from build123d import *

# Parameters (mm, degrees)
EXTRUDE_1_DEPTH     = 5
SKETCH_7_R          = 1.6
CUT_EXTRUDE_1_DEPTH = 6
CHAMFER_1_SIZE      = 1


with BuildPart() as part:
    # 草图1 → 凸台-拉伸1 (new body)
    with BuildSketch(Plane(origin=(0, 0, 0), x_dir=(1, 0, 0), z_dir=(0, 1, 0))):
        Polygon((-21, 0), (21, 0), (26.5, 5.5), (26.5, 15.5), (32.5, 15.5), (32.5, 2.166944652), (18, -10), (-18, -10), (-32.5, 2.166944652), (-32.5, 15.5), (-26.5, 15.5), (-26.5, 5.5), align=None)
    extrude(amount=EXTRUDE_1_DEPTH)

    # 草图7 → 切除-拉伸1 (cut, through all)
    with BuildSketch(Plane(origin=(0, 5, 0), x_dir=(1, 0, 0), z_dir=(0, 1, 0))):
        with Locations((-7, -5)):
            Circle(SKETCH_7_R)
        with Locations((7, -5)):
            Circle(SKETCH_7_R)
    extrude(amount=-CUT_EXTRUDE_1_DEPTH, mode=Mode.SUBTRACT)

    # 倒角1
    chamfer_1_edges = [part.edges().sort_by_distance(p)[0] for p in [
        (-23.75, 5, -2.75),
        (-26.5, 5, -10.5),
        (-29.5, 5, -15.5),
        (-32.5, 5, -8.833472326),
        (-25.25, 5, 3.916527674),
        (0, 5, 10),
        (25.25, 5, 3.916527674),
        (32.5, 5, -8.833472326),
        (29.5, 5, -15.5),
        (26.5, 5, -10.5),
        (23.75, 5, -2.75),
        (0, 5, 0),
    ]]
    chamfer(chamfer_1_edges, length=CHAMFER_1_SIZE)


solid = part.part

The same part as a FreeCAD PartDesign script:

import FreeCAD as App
import Part
import Sketcher
Q = App.Units.Quantity


def edges_at(feature, points):
    """Names of the edges that pass closest to the given points."""
    edges = feature.Shape.Edges
    near = lambda p: min(range(len(edges)), key=lambda i: edges[i].distToShape(Part.Vertex(*p))[0])
    return sorted({f"Edge{near(p) + 1}" for p in points})


def add_polygon(sketch, points):
    """Adds a closed chain of lines whose ends are joined by coincident constraints."""
    first, n = sketch.GeometryCount, len(points)
    for a, b in zip(points, points[1:] + points[:1]):
        sketch.addGeometry(Part.LineSegment(App.Vector(*a, 0), App.Vector(*b, 0)), False)
    for i in range(n):
        sketch.addConstraint(Sketcher.Constraint("Coincident", first + i, 2, first + (i + 1) % n, 1))

doc = App.newDocument("Part")
body = doc.addObject("PartDesign::Body", "Body")

sketch1 = body.newObject("Sketcher::SketchObject", "Sketch")
sketch1.AttachmentSupport = (doc.getObject("XZ_Plane"), [""])
sketch1.MapMode = "FlatFace"
add_polygon(sketch1, [(21, 0), (-21, 0), (-26, -6), (-26, -16), (-32, -16), (-32, -2), (-18, 10), (18, 10), (32, -2), (32, -16), (26, -16), (26, -6)])
sketch1.addConstraint([
    Sketcher.Constraint("Horizontal", 0),
    Sketcher.Constraint("Vertical", 2),
    Sketcher.Constraint("Horizontal", 3),
    Sketcher.Constraint("Vertical", 4),
    Sketcher.Constraint("Horizontal", 6),
    Sketcher.Constraint("Vertical", 8),
    Sketcher.Constraint("Horizontal", 9),
    Sketcher.Constraint("Vertical", 10),
    Sketcher.Constraint("Symmetric", 0, 2, 11, 2, -1, 1),
    Sketcher.Constraint("Symmetric", 4, 2, 7, 2, -2),
    Sketcher.Constraint("Symmetric", 2, 2, 9, 2, -2),
    Sketcher.Constraint("Perpendicular", 1, 11),
    Sketcher.Constraint("Horizontal", 1, 2, 10, 2),
    Sketcher.Constraint("Equal", 5, 7),
    Sketcher.Constraint("DistanceX", 0, 2, 0, 1, 42.0),
    Sketcher.Constraint("DistanceX", 3, 2, 3, 1, 6.0),
    Sketcher.Constraint("DistanceX", 6, 1, 6, 2, 36.0),
    Sketcher.Constraint("DistanceY", 2, 2, 2, 1, 10.0),
    Sketcher.Constraint("Angle", 5, Q("40 deg")),
    Sketcher.Constraint("DistanceY", -1, 1, 5, 2, 10.0),
    Sketcher.Constraint("DistanceX", 1, 2, 7, 2, 59.0),
])
pad1 = body.newObject("PartDesign::Pad", "Pad")
pad1.Profile = sketch1
pad1.Length = 5
pad1.Reversed = True

sketch2 = body.newObject("Sketcher::SketchObject", "Sketch001")
sketch2.AttachmentSupport = (doc.getObject("XZ_Plane"), [""])
sketch2.MapMode = "FlatFace"
sketch2.AttachmentOffset = App.Placement(App.Vector(0, 0, -5), App.Rotation())
sketch2.addGeometry([
    Part.Circle(App.Vector(-7, 5, 0), App.Vector(0, 0, 1), 1.6),
    Part.Circle(App.Vector(7, 5, 0), App.Vector(0, 0, 1), 1.6),
], False)
sketch2.addConstraint([
    Sketcher.Constraint("Equal", 0, 1),
    Sketcher.Constraint("Symmetric", 0, 3, 1, 3, -2),
    Sketcher.Constraint("Diameter", 0, 3.2),
    Sketcher.Constraint("DistanceX", 0, 3, -1, 1, 7.0),
    Sketcher.Constraint("DistanceY", -1, 1, 0, 3, 5.0),
])
pocket1 = body.newObject("PartDesign::Pocket", "Pocket")
pocket1.Profile = sketch2
pocket1.Type = "ThroughAll"
pocket1.Reversed = True
doc.recompute()

chamfer = body.newObject("PartDesign::Chamfer", "Chamfer")
chamfer.Base = (pocket1, edges_at(pocket1, [
    (-23.75, 5, -2.75),
    (-26.5, 5, -10.5),
    (-29.5, 5, -15.5),
    (-32.5, 5, -8.833),
    (-25.25, 5, 3.917),
    (0, 5, 10),
    (25.25, 5, 3.917),
    (32.5, 5, -8.833),
    (29.5, 5, -15.5),
    (26.5, 5, -10.5),
    (23.75, 5, -2.75),
    (0, 5, 0),
]))
chamfer.Size = 1

doc.recompute()
